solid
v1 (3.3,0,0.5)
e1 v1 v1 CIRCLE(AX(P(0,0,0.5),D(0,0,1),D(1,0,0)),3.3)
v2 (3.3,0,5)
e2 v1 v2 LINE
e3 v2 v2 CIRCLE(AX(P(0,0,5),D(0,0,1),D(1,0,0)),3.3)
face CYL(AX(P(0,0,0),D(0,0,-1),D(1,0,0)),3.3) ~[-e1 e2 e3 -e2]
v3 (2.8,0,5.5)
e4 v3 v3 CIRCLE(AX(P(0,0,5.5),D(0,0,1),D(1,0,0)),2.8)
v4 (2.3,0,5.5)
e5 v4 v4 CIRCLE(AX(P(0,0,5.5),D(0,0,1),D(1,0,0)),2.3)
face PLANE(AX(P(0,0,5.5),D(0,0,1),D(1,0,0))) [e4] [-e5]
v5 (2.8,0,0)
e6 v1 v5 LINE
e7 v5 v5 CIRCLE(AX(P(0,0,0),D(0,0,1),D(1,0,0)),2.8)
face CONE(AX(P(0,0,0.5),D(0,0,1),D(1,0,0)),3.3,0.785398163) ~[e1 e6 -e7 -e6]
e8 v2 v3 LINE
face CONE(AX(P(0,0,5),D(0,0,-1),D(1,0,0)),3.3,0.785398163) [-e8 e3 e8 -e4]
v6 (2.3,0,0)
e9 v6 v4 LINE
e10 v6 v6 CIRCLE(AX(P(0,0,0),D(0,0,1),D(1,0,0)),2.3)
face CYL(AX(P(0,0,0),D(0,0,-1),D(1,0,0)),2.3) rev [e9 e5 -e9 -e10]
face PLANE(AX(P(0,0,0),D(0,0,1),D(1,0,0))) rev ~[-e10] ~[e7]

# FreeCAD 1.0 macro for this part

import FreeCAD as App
import Part
import Sketcher

V = App.Vector


def edges_at(feature, points):
    """Names of the edges that pass closest to the given points."""
    edges = feature.Shape.Edges
    near = lambda p: min(range(len(edges)), key=lambda i: edges[i].distToShape(Part.Vertex(*p))[0])
    return sorted({f"Edge{near(p) + 1}" for p in points})

doc = App.newDocument("Part")
body = doc.addObject("PartDesign::Body", "Body")

sketch1 = body.newObject("Sketcher::SketchObject", "Sketch")
sketch1.AttachmentSupport = (doc.getObject("XY_Plane"), [""])
sketch1.MapMode = "FlatFace"
sketch1.addGeometry([
    Part.Circle(V(0, 0, 0), V(0, 0, 1), 3.3),
    Part.Circle(V(0, 0, 0), V(0, 0, 1), 2.3),
], False)
sketch1.addConstraint([
    Sketcher.Constraint("Coincident", 0, 3, -1, 1),
    Sketcher.Constraint("Coincident", 1, 3, -1, 1),
    Sketcher.Constraint("Diameter", 1, 4.6),
    Sketcher.Constraint("Diameter", 0, 6.6),
])
pad1 = body.newObject("PartDesign::Pad", "Pad")
pad1.Profile = sketch1
pad1.Length = 5.5
doc.recompute()

chamfer = body.newObject("PartDesign::Chamfer", "Chamfer")
chamfer.Base = (pad1, edges_at(pad1, [(-3.3, 0, 5.5), (-3.3, 0, 0)]))
chamfer.Size = 0.5

doc.recompute()
